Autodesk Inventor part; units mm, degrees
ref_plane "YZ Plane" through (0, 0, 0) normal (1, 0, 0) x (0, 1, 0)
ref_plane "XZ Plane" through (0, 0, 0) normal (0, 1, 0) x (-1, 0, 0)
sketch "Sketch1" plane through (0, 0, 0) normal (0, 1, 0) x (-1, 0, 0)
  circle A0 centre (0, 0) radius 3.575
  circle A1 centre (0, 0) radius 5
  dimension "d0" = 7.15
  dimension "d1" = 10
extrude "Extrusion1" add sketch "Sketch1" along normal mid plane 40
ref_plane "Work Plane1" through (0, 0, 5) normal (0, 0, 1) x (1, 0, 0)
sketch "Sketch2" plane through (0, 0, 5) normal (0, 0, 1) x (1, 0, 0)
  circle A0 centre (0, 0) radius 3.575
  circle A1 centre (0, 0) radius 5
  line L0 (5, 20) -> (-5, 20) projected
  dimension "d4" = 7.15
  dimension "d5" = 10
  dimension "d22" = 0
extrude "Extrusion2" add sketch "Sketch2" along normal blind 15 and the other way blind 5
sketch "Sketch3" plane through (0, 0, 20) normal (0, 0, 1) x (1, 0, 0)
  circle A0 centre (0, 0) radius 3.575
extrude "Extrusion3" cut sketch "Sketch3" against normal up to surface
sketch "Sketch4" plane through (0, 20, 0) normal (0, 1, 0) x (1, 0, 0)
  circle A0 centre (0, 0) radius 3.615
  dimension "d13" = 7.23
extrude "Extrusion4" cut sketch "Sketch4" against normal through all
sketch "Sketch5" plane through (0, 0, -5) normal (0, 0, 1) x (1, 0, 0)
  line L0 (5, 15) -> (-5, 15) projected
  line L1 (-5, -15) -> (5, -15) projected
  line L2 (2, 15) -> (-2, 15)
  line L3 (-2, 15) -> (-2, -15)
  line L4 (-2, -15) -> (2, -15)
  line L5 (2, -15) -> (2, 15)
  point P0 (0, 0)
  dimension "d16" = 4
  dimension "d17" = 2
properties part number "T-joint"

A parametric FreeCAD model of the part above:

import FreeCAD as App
import Part
import Sketcher

doc = App.newDocument("Part")
params = doc.addObject("Spreadsheet::Sheet", "Params")
for row, (alias, value) in enumerate([
    ("sketch1_diameter", "10 mm"),
    ("sketch1_diameter2", "7.15 mm"),
    ("pad1_length", "40 mm"),
    ("sketch2_diameter", "10 mm"),
    ("sketch2_diameter2", "7.15 mm"),
    ("pad2_length", "15 mm"),
    ("pad2_length2", "5 mm"),
    ("sketch3_diameter", "7.15 mm"),
    ("pocket1_length", "20 mm"),
    ("sketch4_diameter", "7.23 mm"),
], start=1):
    params.set(f"A{row}", alias)
    params.set(f"B{row}", "=" + value)
    params.setAlias(f"B{row}", alias)

body = doc.addObject("PartDesign::Body", "Body")

sketch1 = doc.addObject("Sketcher::SketchObject", "Sketch")
body.addObject(sketch1)
sketch1.AttachmentSupport = (doc.XZ_Plane, [""])
sketch1.MapMode = "FlatFace"
sketch1.addGeometry(Part.Circle(App.Vector(0, 0, 0), App.Vector(0, 0, 1), 5), False)
sketch1.addGeometry(Part.Circle(App.Vector(0, 0, 0), App.Vector(0, 0, 1), 3.6), False)
sketch1.addConstraint(Sketcher.Constraint("Coincident", 0, 3, -1, 1))
sketch1.addConstraint(Sketcher.Constraint("Coincident", 1, 3, -1, 1))
sketch1.addConstraint(Sketcher.Constraint("Diameter", 0, 10.0))
sketch1.addConstraint(Sketcher.Constraint("Diameter", 1, 7.15))
sketch1.setExpression("Constraints[2]", "Params.sketch1_diameter")
sketch1.setExpression("Constraints[3]", "Params.sketch1_diameter2")
pad1 = doc.addObject("PartDesign::Pad", "Pad")
body.addObject(pad1)
pad1.Profile = sketch1
pad1.setExpression("Length", "Params.pad1_length")
pad1.Midplane = True

sketch2 = doc.addObject("Sketcher::SketchObject", "Sketch001")
body.addObject(sketch2)
sketch2.AttachmentSupport = (doc.XY_Plane, [""])
sketch2.MapMode = "FlatFace"
sketch2.AttachmentOffset = App.Placement(App.Vector(0, 0, 5), App.Rotation())
sketch2.addGeometry(Part.Circle(App.Vector(0, 0, 0), App.Vector(0, 0, 1), 5), False)
sketch2.addGeometry(Part.Circle(App.Vector(0, 0, 0), App.Vector(0, 0, 1), 3.6), False)
sketch2.addConstraint(Sketcher.Constraint("Coincident", 0, 3, -1, 1))
sketch2.addConstraint(Sketcher.Constraint("Coincident", 1, 3, -1, 1))
sketch2.addConstraint(Sketcher.Constraint("Diameter", 0, 10.0))
sketch2.addConstraint(Sketcher.Constraint("Diameter", 1, 7.15))
sketch2.setExpression("Constraints[2]", "Params.sketch2_diameter")
sketch2.setExpression("Constraints[3]", "Params.sketch2_diameter2")
pad2 = doc.addObject("PartDesign::Pad", "Pad001")
body.addObject(pad2)
pad2.Profile = sketch2
pad2.Type = "TwoLengths"
pad2.setExpression("Length", "Params.pad2_length")
pad2.setExpression("Length2", "Params.pad2_length2")

sketch3 = doc.addObject("Sketcher::SketchObject", "Sketch002")
body.addObject(sketch3)
sketch3.AttachmentSupport = (doc.XY_Plane, [""])
sketch3.MapMode = "FlatFace"
sketch3.AttachmentOffset = App.Placement(App.Vector(0, 0, 20), App.Rotation())
sketch3.addGeometry(Part.Circle(App.Vector(0, 0, 0), App.Vector(0, 0, 1), 3.6), False)
sketch3.addConstraint(Sketcher.Constraint("Coincident", 0, 3, -1, 1))
sketch3.addConstraint(Sketcher.Constraint("Diameter", 0, 7.15))
sketch3.setExpression("Constraints[1]", "Params.sketch3_diameter")
pocket1 = doc.addObject("PartDesign::Pocket", "Pocket")
body.addObject(pocket1)
pocket1.Profile = sketch3
pocket1.setExpression("Length", "Params.pocket1_length")

sketch4 = doc.addObject("Sketcher::SketchObject", "Sketch003")
body.addObject(sketch4)
sketch4.AttachmentSupport = (doc.XZ_Plane, [""])
sketch4.MapMode = "FlatFace"
sketch4.AttachmentOffset = App.Placement(App.Vector(0, 0, -20), App.Rotation())
sketch4.addGeometry(Part.Circle(App.Vector(0, 0, 0), App.Vector(0, 0, 1), 3.6), False)
sketch4.addConstraint(Sketcher.Constraint("Coincident", 0, 3, -1, 1))
sketch4.addConstraint(Sketcher.Constraint("Diameter", 0, 7.23))
sketch4.setExpression("Constraints[1]", "Params.sketch4_diameter")
pocket2 = doc.addObject("PartDesign::Pocket", "Pocket001")
body.addObject(pocket2)
pocket2.Profile = sketch4
pocket2.Type = "ThroughAll"
pocket2.Reversed = True

doc.recompute()
